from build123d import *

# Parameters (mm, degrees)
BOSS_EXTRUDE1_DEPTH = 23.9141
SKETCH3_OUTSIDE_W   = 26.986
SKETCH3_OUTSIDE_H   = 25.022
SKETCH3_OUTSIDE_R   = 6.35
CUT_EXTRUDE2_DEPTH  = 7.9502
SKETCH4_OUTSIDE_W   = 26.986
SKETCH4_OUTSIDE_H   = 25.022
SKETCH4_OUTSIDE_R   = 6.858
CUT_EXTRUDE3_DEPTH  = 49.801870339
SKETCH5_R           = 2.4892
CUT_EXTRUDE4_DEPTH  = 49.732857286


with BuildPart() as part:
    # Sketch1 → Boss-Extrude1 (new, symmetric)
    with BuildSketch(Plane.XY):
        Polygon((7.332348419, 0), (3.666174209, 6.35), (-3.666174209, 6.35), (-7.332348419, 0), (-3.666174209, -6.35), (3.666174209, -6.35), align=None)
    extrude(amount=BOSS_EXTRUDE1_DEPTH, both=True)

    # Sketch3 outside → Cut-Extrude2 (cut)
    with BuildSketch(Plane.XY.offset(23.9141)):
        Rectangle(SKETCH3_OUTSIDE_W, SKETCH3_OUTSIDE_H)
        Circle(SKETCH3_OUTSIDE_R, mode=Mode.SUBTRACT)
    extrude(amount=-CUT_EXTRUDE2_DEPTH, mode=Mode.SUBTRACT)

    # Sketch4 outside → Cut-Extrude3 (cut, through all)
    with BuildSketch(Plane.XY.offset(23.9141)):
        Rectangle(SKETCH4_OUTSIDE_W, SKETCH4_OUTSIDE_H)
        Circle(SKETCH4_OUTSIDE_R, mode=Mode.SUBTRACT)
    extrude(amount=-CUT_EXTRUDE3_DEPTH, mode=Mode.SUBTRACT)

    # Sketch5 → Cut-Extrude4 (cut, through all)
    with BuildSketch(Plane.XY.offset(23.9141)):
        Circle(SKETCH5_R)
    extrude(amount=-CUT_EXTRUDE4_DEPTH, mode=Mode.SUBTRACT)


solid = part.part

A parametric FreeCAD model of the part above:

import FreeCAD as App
import Part
import Sketcher
from FreeCAD import Vector
Q = App.Units.Quantity


def add_polygon(sketch, points):
    """Adds a closed chain of lines whose ends are joined by coincident constraints."""
    first, n = sketch.GeometryCount, len(points)
    for a, b in zip(points, points[1:] + points[:1]):
        sketch.addGeometry(Part.LineSegment(App.Vector(*a, 0), App.Vector(*b, 0)), False)
    for i in range(n):
        sketch.addConstraint(Sketcher.Constraint("Coincident", first + i, 2, first + (i + 1) % n, 1))

doc = App.newDocument("Part")
body = doc.addObject("PartDesign::Body", "Body")

# Sketch on XY plane
sketch1 = body.newObject("Sketcher::SketchObject", "Sketch")
sketch1.AttachmentSupport = (doc.getObject("XY_Plane"), [""])
sketch1.MapMode = "FlatFace"
add_polygon(sketch1, [(7, 0), (4, 6), (-4, 6), (-7, 0), (-4, -6), (4, -6)])  # lines 0-5
sketch1.addConstraint([
    Sketcher.Constraint("Horizontal", 1),
    Sketcher.Constraint("Horizontal", 4),
    Sketcher.Constraint("Symmetric", 0, 2, 3, 2, -1, 1),
    Sketcher.Constraint("Symmetric", 2, 2, 5, 2, -1, 1),
    Sketcher.Constraint("PointOnObject", 2, 2, -1),
    Sketcher.Constraint("Parallel", 2, 5),
    Sketcher.Constraint("Vertical", 1, 2, 3, 2),
    Sketcher.Constraint("Angle", 0, Q("120 deg")),
    Sketcher.Constraint("DistanceY", 3, 2, 1, 2, Q("0.5 in")),
    Sketcher.Constraint("DistanceX", 1, 2, 1, 1, Q("7.332348 mm")),
])
pad1 = body.newObject("PartDesign::Pad", "Pad")
pad1.Profile = sketch1
pad1.Length = Q("1.883 in")
pad1.Midplane = True

# Sketch on XY plane
sketch2 = body.newObject("Sketcher::SketchObject", "Sketch001")
sketch2.AttachmentSupport = (doc.getObject("XY_Plane"), [""])
sketch2.MapMode = "FlatFace"
sketch2.AttachmentOffset = App.Placement(Vector(0, 0, 0.9415 * 25.4), App.Rotation())
add_polygon(sketch2, [(-13, 13), (-13, -13), (13, -13), (13, 13)])  # lines 0-3
sketch2.addGeometry(Part.Circle(Vector(0, 0, 0), Vector(0, 0, 1), 6), False)  # 4
sketch2.addConstraint([
    Sketcher.Constraint("Vertical", 0),
    Sketcher.Constraint("Horizontal", 1),
    Sketcher.Constraint("Vertical", 2),
    Sketcher.Constraint("Horizontal", 3),
    Sketcher.Constraint("Coincident", 4, 3, -1, 1),
    Sketcher.Constraint("Symmetric", 0, 2, 2, 2, -1, 1),
    Sketcher.Constraint("Diameter", 4, Q("0.5 in")),
    Sketcher.Constraint("DistanceX", 1, 1, 1, 2, Q("26.986 mm")),
    Sketcher.Constraint("DistanceY", 0, 2, 0, 1, Q("25.022 mm")),
])
pocket1 = body.newObject("PartDesign::Pocket", "Pocket")
pocket1.Profile = sketch2
pocket1.Length = Q("0.313 in")

# Sketch on XY plane
sketch3 = body.newObject("Sketcher::SketchObject", "Sketch002")
sketch3.AttachmentSupport = (doc.getObject("XY_Plane"), [""])
sketch3.MapMode = "FlatFace"
sketch3.AttachmentOffset = App.Placement(Vector(0, 0, 0.9415 * 25.4), App.Rotation())
add_polygon(sketch3, [(-13, 13), (-13, -13), (13, -13), (13, 13)])  # lines 0-3
sketch3.addGeometry(Part.Circle(Vector(0, 0, 0), Vector(0, 0, 1), 7), False)  # 4
sketch3.addConstraint([
    Sketcher.Constraint("Vertical", 0),
    Sketcher.Constraint("Horizontal", 1),
    Sketcher.Constraint("Vertical", 2),
    Sketcher.Constraint("Horizontal", 3),
    Sketcher.Constraint("Coincident", 4, 3, -1, 1),
    Sketcher.Constraint("Symmetric", 0, 2, 2, 2, -1, 1),
    Sketcher.Constraint("Diameter", 4, Q("0.54 in")),
    Sketcher.Constraint("DistanceX", 1, 1, 1, 2, Q("26.986 mm")),
    Sketcher.Constraint("DistanceY", 0, 2, 0, 1, Q("25.022 mm")),
])
pocket2 = body.newObject("PartDesign::Pocket", "Pocket001")
pocket2.Profile = sketch3
pocket2.Type = "ThroughAll"

# Sketch on XY plane
sketch4 = body.newObject("Sketcher::SketchObject", "Sketch003")
sketch4.AttachmentSupport = (doc.getObject("XY_Plane"), [""])
sketch4.MapMode = "FlatFace"
sketch4.AttachmentOffset = App.Placement(Vector(0, 0, 0.9415 * 25.4), App.Rotation())
sketch4.addGeometry(Part.Circle(Vector(0, 0, 0), Vector(0, 0, 1), 2.5), False)
sketch4.addConstraint([
    Sketcher.Constraint("Coincident", 0, 3, -1, 1),
    Sketcher.Constraint("Diameter", 0, Q("0.196 in")),
])
pocket3 = body.newObject("PartDesign::Pocket", "Pocket002")
pocket3.Profile = sketch4
pocket3.Type = "ThroughAll"

doc.recompute()
